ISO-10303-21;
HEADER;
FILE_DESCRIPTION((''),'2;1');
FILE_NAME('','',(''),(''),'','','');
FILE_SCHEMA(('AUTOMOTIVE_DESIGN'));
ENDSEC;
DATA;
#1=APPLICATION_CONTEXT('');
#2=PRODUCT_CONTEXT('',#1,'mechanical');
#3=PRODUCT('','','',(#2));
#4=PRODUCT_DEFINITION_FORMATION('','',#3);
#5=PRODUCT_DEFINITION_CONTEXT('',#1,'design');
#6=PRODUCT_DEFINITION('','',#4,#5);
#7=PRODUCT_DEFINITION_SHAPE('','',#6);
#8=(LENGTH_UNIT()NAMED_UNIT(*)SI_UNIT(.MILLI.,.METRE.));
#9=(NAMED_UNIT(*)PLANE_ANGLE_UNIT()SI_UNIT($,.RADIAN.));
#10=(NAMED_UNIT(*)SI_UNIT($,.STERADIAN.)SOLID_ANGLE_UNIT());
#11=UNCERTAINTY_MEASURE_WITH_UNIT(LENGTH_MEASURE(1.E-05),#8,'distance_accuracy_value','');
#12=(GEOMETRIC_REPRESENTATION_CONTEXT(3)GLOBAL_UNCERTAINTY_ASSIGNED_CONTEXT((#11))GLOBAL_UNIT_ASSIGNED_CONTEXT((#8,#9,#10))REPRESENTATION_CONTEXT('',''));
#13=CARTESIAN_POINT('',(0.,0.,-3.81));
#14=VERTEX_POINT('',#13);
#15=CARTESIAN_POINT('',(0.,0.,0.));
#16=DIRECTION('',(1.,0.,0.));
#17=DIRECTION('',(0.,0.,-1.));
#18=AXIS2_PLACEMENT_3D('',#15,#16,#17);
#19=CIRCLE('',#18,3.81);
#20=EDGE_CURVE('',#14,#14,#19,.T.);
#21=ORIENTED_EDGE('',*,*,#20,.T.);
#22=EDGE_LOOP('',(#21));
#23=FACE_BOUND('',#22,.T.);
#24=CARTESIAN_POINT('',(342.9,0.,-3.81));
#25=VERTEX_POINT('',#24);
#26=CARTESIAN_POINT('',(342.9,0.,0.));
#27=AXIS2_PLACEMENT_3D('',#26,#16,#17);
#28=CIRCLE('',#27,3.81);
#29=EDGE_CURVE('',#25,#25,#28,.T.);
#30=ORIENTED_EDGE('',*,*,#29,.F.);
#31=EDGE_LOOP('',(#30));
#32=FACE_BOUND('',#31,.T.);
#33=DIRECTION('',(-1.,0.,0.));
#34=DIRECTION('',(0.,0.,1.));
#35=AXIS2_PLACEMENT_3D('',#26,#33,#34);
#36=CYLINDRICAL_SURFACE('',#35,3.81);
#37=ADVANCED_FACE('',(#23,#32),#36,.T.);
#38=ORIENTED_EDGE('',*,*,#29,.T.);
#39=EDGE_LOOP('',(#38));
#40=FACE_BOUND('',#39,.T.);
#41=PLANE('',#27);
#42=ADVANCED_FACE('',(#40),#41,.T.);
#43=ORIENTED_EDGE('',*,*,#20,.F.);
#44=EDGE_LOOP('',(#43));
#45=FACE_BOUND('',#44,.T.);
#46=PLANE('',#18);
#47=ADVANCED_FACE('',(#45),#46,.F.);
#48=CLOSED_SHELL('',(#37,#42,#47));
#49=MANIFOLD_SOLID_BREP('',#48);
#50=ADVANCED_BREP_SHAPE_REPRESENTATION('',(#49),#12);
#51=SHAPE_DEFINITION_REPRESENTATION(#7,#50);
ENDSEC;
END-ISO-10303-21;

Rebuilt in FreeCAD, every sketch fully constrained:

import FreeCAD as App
import Part
import Sketcher

V = App.Vector
Q = App.Units.Quantity

doc = App.newDocument("Part")
body = doc.addObject("PartDesign::Body", "Body")

# Sketch on YZ plane
sketch1 = doc.addObject("Sketcher::SketchObject", "Sketch")
body.addObject(sketch1)
sketch1.AttachmentSupport = (doc.YZ_Plane, [""])
sketch1.MapMode = "FlatFace"
sketch1.addGeometry(Part.Circle(V(0, 0, 0), V(0, 0, 1), 3.8), False)
sketch1.addConstraint([
    Sketcher.Constraint("Coincident", 0, 3, -1, 1),
    Sketcher.Constraint("Diameter", 0, Q("0.3 in")),
])
pad1 = doc.addObject("PartDesign::Pad", "Pad")
body.addObject(pad1)
pad1.Profile = sketch1
pad1.Length = Q("13.5 in")

doc.recompute()
